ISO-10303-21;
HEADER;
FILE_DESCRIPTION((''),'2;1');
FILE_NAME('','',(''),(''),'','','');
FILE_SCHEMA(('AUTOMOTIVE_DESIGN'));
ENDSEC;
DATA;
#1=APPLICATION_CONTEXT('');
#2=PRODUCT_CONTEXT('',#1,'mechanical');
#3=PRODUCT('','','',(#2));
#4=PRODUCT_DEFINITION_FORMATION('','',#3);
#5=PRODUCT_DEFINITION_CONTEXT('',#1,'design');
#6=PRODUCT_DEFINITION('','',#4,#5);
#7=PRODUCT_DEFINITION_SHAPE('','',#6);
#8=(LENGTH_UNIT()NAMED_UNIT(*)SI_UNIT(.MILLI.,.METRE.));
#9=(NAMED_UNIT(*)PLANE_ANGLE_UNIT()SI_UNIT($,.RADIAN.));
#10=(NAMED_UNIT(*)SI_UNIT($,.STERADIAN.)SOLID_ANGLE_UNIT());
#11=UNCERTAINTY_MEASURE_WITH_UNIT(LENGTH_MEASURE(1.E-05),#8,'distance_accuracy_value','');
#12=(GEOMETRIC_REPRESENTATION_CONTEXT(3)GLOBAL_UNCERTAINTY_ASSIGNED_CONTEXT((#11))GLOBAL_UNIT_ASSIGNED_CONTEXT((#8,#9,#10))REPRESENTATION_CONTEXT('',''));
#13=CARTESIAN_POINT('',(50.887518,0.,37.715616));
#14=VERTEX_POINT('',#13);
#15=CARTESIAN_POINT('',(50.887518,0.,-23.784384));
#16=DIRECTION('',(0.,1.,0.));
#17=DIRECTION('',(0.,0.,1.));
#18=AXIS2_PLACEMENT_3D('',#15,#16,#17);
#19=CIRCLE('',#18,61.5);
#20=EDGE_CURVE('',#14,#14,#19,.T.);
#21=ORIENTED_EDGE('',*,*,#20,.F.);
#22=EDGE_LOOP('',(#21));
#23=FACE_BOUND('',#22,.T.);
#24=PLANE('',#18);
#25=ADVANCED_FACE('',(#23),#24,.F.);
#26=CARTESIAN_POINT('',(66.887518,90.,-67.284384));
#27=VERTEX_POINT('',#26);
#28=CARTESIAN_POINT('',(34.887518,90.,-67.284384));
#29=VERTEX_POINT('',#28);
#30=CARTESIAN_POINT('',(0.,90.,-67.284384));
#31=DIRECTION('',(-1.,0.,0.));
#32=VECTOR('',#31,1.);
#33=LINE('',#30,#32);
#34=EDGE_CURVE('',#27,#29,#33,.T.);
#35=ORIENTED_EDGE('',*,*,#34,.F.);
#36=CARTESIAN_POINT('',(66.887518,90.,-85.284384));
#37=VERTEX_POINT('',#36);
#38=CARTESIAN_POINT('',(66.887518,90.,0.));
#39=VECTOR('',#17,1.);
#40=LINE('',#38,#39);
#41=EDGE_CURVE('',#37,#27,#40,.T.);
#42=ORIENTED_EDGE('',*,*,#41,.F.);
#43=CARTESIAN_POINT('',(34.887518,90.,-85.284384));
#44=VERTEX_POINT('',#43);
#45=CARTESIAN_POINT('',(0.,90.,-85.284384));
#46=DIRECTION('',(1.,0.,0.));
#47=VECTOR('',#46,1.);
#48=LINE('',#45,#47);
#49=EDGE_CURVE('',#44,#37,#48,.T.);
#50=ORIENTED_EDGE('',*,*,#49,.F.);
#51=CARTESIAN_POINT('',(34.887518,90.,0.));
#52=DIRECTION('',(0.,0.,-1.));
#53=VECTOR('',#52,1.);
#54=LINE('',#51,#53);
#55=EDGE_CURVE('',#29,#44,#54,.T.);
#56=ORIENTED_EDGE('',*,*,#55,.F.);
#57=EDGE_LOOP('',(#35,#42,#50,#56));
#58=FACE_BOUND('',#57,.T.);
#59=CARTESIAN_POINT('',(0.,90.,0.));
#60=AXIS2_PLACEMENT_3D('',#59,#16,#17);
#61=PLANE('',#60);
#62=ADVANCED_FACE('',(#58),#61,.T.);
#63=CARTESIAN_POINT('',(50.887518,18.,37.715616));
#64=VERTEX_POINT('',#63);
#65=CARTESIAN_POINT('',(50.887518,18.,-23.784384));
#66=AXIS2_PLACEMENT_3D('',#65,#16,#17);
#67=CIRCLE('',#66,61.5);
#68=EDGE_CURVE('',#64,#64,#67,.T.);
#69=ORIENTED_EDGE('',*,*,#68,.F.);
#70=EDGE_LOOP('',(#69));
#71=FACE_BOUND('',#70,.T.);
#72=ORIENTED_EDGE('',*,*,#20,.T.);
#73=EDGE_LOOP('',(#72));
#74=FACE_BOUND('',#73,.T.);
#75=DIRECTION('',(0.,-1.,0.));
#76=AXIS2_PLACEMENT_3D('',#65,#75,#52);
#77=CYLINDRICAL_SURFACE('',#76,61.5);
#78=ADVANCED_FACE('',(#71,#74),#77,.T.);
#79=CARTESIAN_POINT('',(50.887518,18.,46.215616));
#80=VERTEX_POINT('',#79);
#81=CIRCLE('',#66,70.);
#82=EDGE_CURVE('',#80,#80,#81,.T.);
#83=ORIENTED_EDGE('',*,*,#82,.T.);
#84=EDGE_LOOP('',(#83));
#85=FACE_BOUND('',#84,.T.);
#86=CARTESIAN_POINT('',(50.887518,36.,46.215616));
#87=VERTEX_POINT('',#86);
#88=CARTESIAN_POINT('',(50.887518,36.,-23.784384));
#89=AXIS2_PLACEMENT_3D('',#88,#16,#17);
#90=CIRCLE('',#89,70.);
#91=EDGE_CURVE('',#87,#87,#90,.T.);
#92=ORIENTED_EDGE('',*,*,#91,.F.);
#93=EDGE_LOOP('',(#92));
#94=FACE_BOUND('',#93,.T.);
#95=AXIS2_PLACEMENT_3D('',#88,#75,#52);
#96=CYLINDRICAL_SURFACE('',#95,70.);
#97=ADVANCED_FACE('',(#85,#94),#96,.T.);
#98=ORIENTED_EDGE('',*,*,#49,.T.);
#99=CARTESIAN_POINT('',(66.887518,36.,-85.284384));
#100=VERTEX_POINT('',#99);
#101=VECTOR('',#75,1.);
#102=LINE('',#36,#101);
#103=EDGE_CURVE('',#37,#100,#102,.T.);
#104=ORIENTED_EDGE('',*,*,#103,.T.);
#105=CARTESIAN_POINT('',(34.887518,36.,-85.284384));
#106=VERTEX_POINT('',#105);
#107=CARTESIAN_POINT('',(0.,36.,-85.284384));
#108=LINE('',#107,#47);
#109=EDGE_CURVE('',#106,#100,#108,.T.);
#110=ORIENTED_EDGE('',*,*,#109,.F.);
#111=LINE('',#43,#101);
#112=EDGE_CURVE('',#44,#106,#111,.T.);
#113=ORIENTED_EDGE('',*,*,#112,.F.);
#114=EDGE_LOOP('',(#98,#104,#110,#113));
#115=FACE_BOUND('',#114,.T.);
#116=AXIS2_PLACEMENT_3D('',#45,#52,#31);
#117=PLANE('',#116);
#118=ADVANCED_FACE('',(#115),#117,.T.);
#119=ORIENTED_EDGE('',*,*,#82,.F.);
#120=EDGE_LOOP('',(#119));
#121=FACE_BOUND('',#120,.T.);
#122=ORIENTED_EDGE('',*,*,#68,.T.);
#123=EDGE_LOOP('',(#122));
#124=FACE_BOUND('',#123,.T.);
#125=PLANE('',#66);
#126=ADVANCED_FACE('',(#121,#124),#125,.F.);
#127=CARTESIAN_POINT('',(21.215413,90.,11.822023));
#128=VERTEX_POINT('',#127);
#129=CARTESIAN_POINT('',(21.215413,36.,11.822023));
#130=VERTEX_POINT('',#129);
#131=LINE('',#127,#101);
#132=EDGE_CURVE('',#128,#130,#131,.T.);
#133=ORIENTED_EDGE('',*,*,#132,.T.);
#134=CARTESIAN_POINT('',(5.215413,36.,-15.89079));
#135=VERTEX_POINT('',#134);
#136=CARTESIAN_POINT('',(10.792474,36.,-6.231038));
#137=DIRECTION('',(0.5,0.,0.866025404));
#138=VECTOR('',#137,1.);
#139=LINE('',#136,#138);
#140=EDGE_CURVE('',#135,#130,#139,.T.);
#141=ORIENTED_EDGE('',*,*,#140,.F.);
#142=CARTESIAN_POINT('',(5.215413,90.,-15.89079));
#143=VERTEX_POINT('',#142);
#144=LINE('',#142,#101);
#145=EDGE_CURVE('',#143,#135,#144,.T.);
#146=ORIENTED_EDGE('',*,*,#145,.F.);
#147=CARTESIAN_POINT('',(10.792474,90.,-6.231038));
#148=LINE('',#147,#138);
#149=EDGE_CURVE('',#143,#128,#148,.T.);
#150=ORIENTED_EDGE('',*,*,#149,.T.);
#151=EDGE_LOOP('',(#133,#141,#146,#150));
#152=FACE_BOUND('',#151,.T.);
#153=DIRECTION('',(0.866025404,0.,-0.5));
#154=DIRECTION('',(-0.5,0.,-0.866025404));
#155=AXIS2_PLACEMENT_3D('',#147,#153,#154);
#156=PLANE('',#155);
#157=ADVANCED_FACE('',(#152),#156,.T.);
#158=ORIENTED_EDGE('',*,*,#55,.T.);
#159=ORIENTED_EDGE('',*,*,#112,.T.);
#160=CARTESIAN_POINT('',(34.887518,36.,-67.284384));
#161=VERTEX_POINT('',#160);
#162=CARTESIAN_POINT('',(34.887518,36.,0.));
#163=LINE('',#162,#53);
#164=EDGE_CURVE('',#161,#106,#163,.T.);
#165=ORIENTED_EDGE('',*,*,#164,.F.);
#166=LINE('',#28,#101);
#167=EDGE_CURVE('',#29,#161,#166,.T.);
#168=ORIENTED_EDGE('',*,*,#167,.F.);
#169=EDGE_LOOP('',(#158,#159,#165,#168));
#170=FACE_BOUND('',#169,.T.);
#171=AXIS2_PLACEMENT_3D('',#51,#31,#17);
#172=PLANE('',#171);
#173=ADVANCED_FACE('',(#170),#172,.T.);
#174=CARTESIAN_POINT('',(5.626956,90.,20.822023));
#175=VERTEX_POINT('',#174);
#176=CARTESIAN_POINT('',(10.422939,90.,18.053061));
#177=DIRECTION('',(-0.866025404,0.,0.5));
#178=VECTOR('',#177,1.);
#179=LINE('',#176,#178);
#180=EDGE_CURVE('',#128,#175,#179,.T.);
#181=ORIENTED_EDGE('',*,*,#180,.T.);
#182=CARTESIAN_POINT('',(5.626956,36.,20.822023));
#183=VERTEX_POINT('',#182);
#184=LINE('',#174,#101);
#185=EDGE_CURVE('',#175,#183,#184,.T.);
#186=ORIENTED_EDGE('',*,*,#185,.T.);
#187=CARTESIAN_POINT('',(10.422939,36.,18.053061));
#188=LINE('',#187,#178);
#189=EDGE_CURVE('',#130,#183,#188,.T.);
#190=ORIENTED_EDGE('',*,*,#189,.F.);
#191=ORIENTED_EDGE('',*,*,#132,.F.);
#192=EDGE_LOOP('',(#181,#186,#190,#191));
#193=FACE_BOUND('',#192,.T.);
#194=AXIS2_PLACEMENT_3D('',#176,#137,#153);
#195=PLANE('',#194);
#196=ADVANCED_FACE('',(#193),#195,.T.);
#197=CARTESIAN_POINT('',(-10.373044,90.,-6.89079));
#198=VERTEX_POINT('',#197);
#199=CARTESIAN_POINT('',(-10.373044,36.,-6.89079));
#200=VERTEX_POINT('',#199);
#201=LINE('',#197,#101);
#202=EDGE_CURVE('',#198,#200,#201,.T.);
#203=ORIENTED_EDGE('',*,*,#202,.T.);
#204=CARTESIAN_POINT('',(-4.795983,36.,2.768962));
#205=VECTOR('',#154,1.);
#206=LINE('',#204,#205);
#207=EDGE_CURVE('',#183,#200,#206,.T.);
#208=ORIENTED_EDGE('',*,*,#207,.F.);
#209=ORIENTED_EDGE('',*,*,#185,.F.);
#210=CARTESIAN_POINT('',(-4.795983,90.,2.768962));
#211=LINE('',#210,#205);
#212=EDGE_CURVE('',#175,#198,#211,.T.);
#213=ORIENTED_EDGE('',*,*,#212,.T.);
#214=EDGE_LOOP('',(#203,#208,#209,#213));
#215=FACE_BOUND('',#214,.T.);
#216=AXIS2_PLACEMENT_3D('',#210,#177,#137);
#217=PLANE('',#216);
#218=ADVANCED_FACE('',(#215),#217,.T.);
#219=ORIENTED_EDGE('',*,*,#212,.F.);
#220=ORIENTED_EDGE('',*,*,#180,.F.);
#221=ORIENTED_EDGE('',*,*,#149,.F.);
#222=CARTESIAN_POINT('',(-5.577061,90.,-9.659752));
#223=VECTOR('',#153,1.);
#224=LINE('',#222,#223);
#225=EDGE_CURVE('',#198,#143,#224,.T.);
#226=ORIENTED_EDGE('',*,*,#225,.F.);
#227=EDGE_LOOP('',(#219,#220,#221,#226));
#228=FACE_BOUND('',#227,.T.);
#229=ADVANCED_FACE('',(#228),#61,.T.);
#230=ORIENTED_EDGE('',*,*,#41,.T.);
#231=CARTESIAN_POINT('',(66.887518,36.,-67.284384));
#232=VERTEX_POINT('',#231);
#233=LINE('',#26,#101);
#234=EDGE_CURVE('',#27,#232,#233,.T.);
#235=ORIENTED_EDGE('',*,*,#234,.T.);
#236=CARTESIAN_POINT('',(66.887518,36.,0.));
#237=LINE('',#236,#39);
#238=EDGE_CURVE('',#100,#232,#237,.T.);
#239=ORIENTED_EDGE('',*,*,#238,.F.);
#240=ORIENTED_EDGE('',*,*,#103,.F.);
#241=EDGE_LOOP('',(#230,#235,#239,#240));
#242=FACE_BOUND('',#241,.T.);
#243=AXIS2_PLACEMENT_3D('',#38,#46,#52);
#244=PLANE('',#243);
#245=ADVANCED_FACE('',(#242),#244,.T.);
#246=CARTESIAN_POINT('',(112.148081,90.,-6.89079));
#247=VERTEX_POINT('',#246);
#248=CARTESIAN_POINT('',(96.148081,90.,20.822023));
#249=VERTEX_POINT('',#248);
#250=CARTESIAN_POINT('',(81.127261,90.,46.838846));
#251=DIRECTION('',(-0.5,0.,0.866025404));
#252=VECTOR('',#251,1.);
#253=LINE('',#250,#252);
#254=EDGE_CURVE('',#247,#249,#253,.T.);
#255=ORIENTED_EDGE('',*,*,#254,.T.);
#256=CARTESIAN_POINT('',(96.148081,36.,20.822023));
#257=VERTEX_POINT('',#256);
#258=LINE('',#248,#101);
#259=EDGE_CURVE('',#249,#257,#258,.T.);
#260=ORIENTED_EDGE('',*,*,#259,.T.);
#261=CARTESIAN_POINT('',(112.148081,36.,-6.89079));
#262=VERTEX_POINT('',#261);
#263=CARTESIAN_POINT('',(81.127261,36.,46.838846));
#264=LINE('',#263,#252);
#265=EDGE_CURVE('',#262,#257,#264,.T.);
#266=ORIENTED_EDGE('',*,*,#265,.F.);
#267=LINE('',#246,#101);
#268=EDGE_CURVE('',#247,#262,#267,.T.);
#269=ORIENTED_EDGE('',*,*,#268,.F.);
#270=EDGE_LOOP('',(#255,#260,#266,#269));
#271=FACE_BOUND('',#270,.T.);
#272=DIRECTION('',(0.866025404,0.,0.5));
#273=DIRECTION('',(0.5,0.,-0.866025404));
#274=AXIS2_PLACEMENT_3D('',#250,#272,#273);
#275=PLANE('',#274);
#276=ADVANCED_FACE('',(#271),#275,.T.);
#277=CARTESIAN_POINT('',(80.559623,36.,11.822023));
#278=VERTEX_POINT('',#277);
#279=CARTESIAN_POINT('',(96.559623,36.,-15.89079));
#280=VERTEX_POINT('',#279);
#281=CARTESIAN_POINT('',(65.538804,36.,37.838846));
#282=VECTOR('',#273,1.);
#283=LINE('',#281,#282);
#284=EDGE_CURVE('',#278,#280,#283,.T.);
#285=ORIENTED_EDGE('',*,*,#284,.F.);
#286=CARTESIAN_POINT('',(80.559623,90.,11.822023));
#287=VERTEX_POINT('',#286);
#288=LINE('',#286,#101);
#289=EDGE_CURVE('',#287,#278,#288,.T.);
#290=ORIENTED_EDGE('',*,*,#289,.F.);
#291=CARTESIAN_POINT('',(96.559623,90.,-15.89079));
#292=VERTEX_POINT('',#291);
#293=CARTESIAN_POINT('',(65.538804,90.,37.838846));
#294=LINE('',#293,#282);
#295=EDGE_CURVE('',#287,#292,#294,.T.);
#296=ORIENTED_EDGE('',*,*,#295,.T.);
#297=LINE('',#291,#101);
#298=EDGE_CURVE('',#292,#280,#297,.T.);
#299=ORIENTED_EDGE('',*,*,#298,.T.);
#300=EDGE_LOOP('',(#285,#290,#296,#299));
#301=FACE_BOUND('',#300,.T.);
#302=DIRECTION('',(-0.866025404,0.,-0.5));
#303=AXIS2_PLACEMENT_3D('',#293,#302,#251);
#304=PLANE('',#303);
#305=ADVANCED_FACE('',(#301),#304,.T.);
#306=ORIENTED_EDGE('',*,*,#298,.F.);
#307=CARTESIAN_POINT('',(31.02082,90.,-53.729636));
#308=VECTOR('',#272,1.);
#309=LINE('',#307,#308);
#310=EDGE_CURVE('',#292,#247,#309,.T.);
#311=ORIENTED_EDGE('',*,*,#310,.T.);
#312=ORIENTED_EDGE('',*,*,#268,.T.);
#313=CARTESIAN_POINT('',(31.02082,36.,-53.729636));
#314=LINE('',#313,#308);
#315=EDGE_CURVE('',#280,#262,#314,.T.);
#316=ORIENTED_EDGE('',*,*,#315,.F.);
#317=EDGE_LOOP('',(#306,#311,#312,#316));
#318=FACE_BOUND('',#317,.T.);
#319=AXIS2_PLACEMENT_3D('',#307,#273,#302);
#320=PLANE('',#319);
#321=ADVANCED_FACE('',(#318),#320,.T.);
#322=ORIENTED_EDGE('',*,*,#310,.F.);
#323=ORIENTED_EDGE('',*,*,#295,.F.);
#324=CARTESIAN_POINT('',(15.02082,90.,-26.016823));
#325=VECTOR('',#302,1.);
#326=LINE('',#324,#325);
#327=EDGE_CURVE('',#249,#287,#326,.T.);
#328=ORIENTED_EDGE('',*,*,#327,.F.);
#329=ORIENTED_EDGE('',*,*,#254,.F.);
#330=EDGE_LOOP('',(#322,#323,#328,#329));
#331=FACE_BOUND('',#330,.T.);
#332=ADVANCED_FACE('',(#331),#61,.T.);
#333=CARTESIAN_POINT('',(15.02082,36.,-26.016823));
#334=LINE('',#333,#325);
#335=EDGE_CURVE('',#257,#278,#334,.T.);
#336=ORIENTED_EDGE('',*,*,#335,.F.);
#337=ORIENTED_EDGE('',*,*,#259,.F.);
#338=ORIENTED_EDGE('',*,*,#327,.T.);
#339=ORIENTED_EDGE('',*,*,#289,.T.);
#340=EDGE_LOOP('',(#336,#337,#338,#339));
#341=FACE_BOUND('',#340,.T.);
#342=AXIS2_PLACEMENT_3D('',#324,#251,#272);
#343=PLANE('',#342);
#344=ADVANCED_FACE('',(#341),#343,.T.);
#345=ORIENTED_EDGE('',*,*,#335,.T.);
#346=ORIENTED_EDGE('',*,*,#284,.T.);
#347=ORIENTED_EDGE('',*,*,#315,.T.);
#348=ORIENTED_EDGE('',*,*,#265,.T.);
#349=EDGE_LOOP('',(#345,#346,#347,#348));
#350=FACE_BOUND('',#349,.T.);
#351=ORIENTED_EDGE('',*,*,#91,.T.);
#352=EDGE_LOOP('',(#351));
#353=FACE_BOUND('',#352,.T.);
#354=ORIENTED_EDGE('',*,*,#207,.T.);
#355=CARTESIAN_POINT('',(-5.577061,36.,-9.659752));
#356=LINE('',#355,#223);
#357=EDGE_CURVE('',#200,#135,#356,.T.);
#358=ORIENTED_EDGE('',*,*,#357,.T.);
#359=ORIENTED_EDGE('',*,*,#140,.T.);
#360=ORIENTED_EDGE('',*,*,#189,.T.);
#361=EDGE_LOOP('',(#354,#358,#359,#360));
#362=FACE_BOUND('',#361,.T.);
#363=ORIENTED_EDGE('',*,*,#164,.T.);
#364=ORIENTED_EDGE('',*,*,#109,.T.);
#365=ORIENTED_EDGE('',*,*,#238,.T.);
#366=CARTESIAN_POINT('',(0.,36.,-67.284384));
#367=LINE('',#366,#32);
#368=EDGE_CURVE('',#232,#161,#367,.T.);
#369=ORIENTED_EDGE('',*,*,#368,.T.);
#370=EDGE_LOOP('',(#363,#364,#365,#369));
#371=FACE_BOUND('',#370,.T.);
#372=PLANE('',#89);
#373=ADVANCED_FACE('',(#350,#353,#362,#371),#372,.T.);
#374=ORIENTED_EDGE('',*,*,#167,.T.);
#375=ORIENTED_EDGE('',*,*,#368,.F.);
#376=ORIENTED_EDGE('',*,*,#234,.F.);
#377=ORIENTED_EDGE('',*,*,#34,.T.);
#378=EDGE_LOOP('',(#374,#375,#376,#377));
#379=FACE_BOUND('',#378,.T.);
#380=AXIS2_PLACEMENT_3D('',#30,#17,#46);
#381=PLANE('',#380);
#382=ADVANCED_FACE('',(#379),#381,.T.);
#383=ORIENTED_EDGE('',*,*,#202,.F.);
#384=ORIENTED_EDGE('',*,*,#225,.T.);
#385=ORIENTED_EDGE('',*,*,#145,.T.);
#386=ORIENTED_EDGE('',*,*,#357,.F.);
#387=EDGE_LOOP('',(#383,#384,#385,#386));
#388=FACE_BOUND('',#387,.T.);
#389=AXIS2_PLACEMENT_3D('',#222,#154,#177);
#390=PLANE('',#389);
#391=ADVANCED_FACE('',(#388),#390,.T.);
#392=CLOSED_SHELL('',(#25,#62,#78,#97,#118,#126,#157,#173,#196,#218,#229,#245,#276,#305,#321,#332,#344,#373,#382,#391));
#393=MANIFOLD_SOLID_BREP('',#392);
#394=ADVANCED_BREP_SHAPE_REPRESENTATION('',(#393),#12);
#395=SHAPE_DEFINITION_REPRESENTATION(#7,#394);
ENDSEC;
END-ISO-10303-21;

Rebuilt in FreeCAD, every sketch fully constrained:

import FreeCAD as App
import Part
import Sketcher
Q = App.Units.Quantity


def add_polygon(sketch, points):
    """Adds a closed chain of lines whose ends are joined by coincident constraints."""
    first, n = sketch.GeometryCount, len(points)
    for a, b in zip(points, points[1:] + points[:1]):
        sketch.addGeometry(Part.LineSegment(App.Vector(*a, 0), App.Vector(*b, 0)), False)
    for i in range(n):
        sketch.addConstraint(Sketcher.Constraint("Coincident", first + i, 2, first + (i + 1) % n, 1))

doc = App.newDocument("Part")
body = doc.addObject("PartDesign::Body", "Body")

# Sketch on XZ plane
sketch1 = body.newObject("Sketcher::SketchObject", "Sketch")
sketch1.AttachmentSupport = (doc.getObject("XZ_Plane"), [""])
sketch1.MapMode = "FlatFace"
sketch1.addGeometry(Part.Circle(App.Vector(51, -24, 0), App.Vector(0, 0, 1), 62), False)
sketch1.addConstraint([
    Sketcher.Constraint("Diameter", 0, 123.0),
    Sketcher.Constraint("DistanceX", -1, 1, 0, 3, 50.887518),
    Sketcher.Constraint("DistanceY", 0, 3, -1, 1, 23.784384),
])
pad1 = body.newObject("PartDesign::Pad", "Pad")
pad1.Profile = sketch1
pad1.Length = 18
pad1.Reversed = True

# Sketch on XZ plane
sketch2 = body.newObject("Sketcher::SketchObject", "Sketch001")
sketch2.AttachmentSupport = (doc.getObject("XZ_Plane"), [""])
sketch2.MapMode = "FlatFace"
sketch2.AttachmentOffset = App.Placement(App.Vector(0, 0, -18), App.Rotation())
sketch2.addGeometry(Part.Circle(App.Vector(51, -24, 0), App.Vector(0, 0, 1), 70), False)
sketch2.addConstraint([
    Sketcher.Constraint("Diameter", 0, 140.0),
    Sketcher.Constraint("DistanceX", -1, 1, 0, 3, 50.887518),
    Sketcher.Constraint("DistanceY", 0, 3, -1, 1, 23.784384),
])
pad2 = body.newObject("PartDesign::Pad", "Pad001")
pad2.Profile = sketch2
pad2.Length = 18
pad2.Reversed = True

# Sketch on XZ plane
sketch3 = body.newObject("Sketcher::SketchObject", "Sketch002")
sketch3.AttachmentSupport = (doc.getObject("XZ_Plane"), [""])
sketch3.MapMode = "FlatFace"
sketch3.AttachmentOffset = App.Placement(App.Vector(0, 0, -36), App.Rotation())
add_polygon(sketch3, [(7.5, 19.8), (21.2, 11.8), (5.2, -15.9), (-8.5, -7.9), (-10.4, -6.9), (5.6, 20.8)])  # lines 0-5
add_polygon(sketch3, [(66.9, -67.3), (66.9, -85.3), (34.9, -85.3), (34.9, -67.3)])  # lines 6-9
add_polygon(sketch3, [(112.1, -6.9), (110.3, -7.9), (96.6, -15.9), (80.6, 11.8), (94.3, 19.8), (96.1, 20.8)])  # lines 10-15
sketch3.addConstraint([
    Sketcher.Constraint("Vertical", 6),
    Sketcher.Constraint("Horizontal", 7),
    Sketcher.Constraint("Vertical", 8),
    Sketcher.Constraint("Horizontal", 9),
    Sketcher.Constraint("Perpendicular", 0, 1),
    Sketcher.Constraint("Perpendicular", 1, 2),
    Sketcher.Constraint("Parallel", 2, 3),
    Sketcher.Constraint("Perpendicular", 3, 4),
    Sketcher.Constraint("Perpendicular", 4, 5),
    Sketcher.Constraint("Parallel", 10, 11),
    Sketcher.Constraint("Perpendicular", 11, 12),
    Sketcher.Constraint("Perpendicular", 12, 13),
    Sketcher.Constraint("Parallel", 13, 14),
    Sketcher.Constraint("Perpendicular", 14, 15),
    Sketcher.Constraint("Horizontal", 2, 2, 10, 2),
    Sketcher.Constraint("Horizontal", 1, 2, 11, 2),
    Sketcher.Constraint("Horizontal", 0, 2, 12, 2),
    Sketcher.Constraint("Horizontal", 5, 2, 13, 2),
    Sketcher.Constraint("Horizontal", 4, 2, 14, 2),
    Sketcher.Constraint("Equal", 0, 2),
    Sketcher.Constraint("Equal", 5, 10),
    Sketcher.Constraint("DistanceX", 7, 2, 7, 1, 32.0),
    Sketcher.Constraint("DistanceY", 6, 2, 6, 1, 18.0),
    Sketcher.Constraint("Angle", 0, Q("-30 deg")),
    Sketcher.Constraint("Distance", 1, 32.0),
    Sketcher.Constraint("DistanceY", 1, 2, 3, 2, 9.0),
    Sketcher.Constraint("DistanceY", 1, 2, -1, 1, 15.89079),
    Sketcher.Constraint("DistanceY", 2, 2, -1, 1, 7.949672),
    Sketcher.Constraint("DistanceX", -1, 1, 6, 2, 66.887518),
    Sketcher.Constraint("DistanceX", -1, 1, 14, 2, 96.148081),
    Sketcher.Constraint("DistanceY", 6, 2, 2, 2, 77.334712),
    Sketcher.Constraint("DistanceX", 0, 2, 10, 2, 89.09863),
])
pad3 = body.newObject("PartDesign::Pad", "Pad002")
pad3.Profile = sketch3
pad3.Length = 54
pad3.Reversed = True

doc.recompute()
